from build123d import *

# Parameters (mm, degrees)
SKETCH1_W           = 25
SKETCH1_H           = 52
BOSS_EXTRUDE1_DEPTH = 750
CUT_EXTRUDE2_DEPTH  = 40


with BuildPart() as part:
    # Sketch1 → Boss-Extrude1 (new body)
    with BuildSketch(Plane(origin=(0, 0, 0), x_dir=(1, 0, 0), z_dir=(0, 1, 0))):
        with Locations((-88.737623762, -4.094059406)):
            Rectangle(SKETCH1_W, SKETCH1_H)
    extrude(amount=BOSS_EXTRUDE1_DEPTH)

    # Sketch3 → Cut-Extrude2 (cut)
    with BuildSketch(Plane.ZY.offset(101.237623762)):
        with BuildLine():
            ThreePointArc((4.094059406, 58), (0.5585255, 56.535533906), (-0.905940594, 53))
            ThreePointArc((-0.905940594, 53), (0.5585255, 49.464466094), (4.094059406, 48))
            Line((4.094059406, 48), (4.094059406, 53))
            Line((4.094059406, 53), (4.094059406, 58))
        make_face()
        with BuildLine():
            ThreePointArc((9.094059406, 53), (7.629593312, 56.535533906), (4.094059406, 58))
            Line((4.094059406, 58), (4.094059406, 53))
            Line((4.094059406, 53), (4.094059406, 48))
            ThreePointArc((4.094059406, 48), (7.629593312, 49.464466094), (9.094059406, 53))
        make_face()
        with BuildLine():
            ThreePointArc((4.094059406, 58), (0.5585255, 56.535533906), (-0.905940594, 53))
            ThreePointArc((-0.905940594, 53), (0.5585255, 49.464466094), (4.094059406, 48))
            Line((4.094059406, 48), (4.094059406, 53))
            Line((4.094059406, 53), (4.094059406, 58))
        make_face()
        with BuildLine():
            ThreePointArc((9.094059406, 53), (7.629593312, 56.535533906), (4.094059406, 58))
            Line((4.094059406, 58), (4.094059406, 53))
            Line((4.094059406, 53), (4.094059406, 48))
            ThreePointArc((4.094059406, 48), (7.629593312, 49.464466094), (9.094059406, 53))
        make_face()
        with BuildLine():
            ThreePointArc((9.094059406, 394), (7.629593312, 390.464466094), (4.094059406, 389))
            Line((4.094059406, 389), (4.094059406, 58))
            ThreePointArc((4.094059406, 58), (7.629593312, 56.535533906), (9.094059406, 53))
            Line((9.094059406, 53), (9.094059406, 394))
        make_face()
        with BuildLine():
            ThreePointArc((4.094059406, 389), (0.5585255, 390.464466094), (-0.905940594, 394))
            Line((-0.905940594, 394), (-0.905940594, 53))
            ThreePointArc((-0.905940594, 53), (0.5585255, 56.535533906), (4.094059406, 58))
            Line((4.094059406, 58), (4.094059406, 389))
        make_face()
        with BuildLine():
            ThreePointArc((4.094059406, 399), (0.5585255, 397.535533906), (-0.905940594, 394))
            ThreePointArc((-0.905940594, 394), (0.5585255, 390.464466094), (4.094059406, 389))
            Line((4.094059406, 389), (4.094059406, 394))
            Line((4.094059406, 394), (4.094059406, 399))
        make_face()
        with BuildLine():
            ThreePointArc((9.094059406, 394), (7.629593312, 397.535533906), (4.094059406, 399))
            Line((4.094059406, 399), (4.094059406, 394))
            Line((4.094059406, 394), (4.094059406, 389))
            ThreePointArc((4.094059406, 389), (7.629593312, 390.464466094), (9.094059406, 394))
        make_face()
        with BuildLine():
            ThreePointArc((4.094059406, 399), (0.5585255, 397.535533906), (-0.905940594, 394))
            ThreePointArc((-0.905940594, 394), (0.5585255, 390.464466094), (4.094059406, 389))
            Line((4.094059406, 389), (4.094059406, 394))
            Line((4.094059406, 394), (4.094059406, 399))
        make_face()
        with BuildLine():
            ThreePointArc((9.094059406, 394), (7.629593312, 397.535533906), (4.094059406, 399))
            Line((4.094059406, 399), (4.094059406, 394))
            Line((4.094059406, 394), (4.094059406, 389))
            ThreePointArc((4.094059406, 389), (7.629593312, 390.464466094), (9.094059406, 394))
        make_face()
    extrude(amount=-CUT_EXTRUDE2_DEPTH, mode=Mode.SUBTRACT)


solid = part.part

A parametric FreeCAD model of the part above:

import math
import FreeCAD as App
import Part
import Sketcher
from FreeCAD import Vector

doc = App.newDocument("Part")
body = doc.addObject("PartDesign::Body", "Body")

# Sketch on XZ plane
sketch1 = body.newObject("Sketcher::SketchObject", "Sketch")
sketch1.AttachmentSupport = (doc.getObject("XZ_Plane"), [""])
sketch1.MapMode = "FlatFace"
sketch1.addGeometry(Part.LineSegment(Vector(-101, -22, 0), Vector(-101, 30, 0)), False)
sketch1.addGeometry(Part.LineSegment(Vector(-101, 30, 0), Vector(-76, 30, 0)), False)
sketch1.addGeometry(Part.LineSegment(Vector(-76, 30, 0), Vector(-76, -22, 0)), False)
sketch1.addGeometry(Part.LineSegment(Vector(-76, -22, 0), Vector(-101, -22, 0)), False)
sketch1.addConstraint(Sketcher.Constraint("Coincident", 0, 2, 1, 1))
sketch1.addConstraint(Sketcher.Constraint("Coincident", 1, 2, 2, 1))
sketch1.addConstraint(Sketcher.Constraint("Coincident", 2, 2, 3, 1))
sketch1.addConstraint(Sketcher.Constraint("Coincident", 3, 2, 0, 1))
sketch1.addConstraint(Sketcher.Constraint("Vertical", 0))
sketch1.addConstraint(Sketcher.Constraint("Horizontal", 1))
sketch1.addConstraint(Sketcher.Constraint("Vertical", 2))
sketch1.addConstraint(Sketcher.Constraint("Horizontal", 3))
sketch1.addConstraint(Sketcher.Constraint("DistanceX", 1, 1, 1, 2, 25.0))
sketch1.addConstraint(Sketcher.Constraint("DistanceY", 0, 1, 0, 2, 52.0))
sketch1.addConstraint(Sketcher.Constraint("DistanceY", -1, 1, 0, 2, 30.094059))
sketch1.addConstraint(Sketcher.Constraint("DistanceX", 0, 2, -1, 1, 101.237624))
pad1 = body.newObject("PartDesign::Pad", "Pad")
pad1.Profile = sketch1
pad1.Length = 750
pad1.Reversed = True

# Sketch on YZ plane
sketch2 = body.newObject("Sketcher::SketchObject", "Sketch001")
sketch2.AttachmentSupport = (doc.getObject("YZ_Plane"), [""])
sketch2.MapMode = "FlatFace"
sketch2.AttachmentOffset = App.Placement(Vector(0, 0, -101.237624), App.Rotation())
sketch2.addGeometry(Part.ArcOfCircle(Part.Circle(Vector(394, 4, 0), Vector(0, 0, 1), 5), math.radians(-90), math.radians(0)), False)
sketch2.addGeometry(Part.LineSegment(Vector(394, -1, 0), Vector(53, -1, 0)), False)
sketch2.addGeometry(Part.ArcOfCircle(Part.Circle(Vector(53, 4, 0), Vector(0, 0, 1), 5), math.radians(180), math.radians(270)), False)
sketch2.addGeometry(Part.ArcOfCircle(Part.Circle(Vector(53, 4, 0), Vector(0, 0, 1), 5), math.radians(90), math.radians(180)), False)
sketch2.addGeometry(Part.LineSegment(Vector(53, 9, 0), Vector(394, 9, 0)), False)
sketch2.addGeometry(Part.ArcOfCircle(Part.Circle(Vector(394, 4, 0), Vector(0, 0, 1), 5), math.radians(0), math.radians(90)), False)
sketch2.addConstraint(Sketcher.Constraint("Tangent", 0, 1, 1, 1))
sketch2.addConstraint(Sketcher.Constraint("Tangent", 1, 2, 2, 2))
sketch2.addConstraint(Sketcher.Constraint("Tangent", 2, 1, 3, 2))
sketch2.addConstraint(Sketcher.Constraint("Tangent", 3, 1, 4, 1))
sketch2.addConstraint(Sketcher.Constraint("Tangent", 4, 2, 5, 2))
sketch2.addConstraint(Sketcher.Constraint("Tangent", 5, 1, 0, 2))
sketch2.addConstraint(Sketcher.Constraint("Horizontal", 1))
sketch2.addConstraint(Sketcher.Constraint("Horizontal", 4))
sketch2.addConstraint(Sketcher.Constraint("Equal", 0, 2))
sketch2.addConstraint(Sketcher.Constraint("Equal", 2, 3))
sketch2.addConstraint(Sketcher.Constraint("Horizontal", 5, 3, 2, 1))
sketch2.addConstraint(Sketcher.Constraint("Horizontal", 2, 1, 5, 1))
sketch2.addConstraint(Sketcher.Constraint("Radius", 0, 5.0))
sketch2.addConstraint(Sketcher.Constraint("DistanceX", 1, 2, 1, 1, 341.0))
sketch2.addConstraint(Sketcher.Constraint("DistanceX", -1, 1, 0, 3, 394.0))
sketch2.addConstraint(Sketcher.Constraint("DistanceY", -1, 1, 0, 3, 4.094059))
pocket1 = body.newObject("PartDesign::Pocket", "Pocket")
pocket1.Profile = sketch2
pocket1.Length = 40
pocket1.Reversed = True

doc.recompute()
